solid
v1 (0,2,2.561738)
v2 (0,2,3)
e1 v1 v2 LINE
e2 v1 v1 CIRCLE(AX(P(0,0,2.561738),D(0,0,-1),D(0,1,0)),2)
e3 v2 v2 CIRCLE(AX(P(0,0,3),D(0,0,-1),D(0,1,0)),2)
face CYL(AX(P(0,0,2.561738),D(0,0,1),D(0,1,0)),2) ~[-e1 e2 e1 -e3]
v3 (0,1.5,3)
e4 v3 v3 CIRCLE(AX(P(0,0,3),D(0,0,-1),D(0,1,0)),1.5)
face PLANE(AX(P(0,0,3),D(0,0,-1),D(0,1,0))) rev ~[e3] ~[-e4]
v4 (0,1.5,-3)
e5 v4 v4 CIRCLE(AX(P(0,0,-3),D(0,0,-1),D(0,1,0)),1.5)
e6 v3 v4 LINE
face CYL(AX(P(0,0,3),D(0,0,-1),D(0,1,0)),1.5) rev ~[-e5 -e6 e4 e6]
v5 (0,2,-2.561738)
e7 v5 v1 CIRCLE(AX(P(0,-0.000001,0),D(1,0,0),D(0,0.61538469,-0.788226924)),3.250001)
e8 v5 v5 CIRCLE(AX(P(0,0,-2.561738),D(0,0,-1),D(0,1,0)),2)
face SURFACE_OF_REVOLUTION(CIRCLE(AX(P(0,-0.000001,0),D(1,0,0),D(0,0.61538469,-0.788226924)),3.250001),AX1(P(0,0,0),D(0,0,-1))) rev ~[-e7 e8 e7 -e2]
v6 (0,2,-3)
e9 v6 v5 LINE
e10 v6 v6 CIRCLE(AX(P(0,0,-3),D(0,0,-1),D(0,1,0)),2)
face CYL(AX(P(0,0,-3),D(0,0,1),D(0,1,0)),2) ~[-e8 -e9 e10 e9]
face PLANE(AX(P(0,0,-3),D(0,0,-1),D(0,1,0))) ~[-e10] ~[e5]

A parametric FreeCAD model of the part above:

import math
import FreeCAD as App
import Part
import Sketcher
Q = App.Units.Quantity

doc = App.newDocument("Part")
body = doc.addObject("PartDesign::Body", "Body")

sketch1 = doc.addObject("Sketcher::SketchObject", "Sketch")
body.addObject(sketch1)
sketch1.AttachmentSupport = (doc.YZ_Plane, [""])
sketch1.MapMode = "FlatFace"
sketch1.addGeometry(Part.LineSegment(App.Vector(2, -3, 0), App.Vector(2, -2.56, 0)), False)
sketch1.addGeometry(Part.ArcOfCircle(Part.Circle(App.Vector(0, 0, 0), App.Vector(0, 0, 1), 3.25), math.radians(-52), math.radians(52)), False)
sketch1.addGeometry(Part.LineSegment(App.Vector(2, 2.56, 0), App.Vector(2, 3, 0)), False)
sketch1.addGeometry(Part.LineSegment(App.Vector(2, 3, 0), App.Vector(1.5, 3, 0)), False)
sketch1.addGeometry(Part.LineSegment(App.Vector(1.5, 3, 0), App.Vector(1.5, -3, 0)), False)
sketch1.addGeometry(Part.LineSegment(App.Vector(1.5, -3, 0), App.Vector(2, -3, 0)), False)
sketch1.addConstraint(Sketcher.Constraint("Coincident", 0, 2, 1, 1))
sketch1.addConstraint(Sketcher.Constraint("Coincident", 1, 2, 2, 1))
sketch1.addConstraint(Sketcher.Constraint("Coincident", 2, 2, 3, 1))
sketch1.addConstraint(Sketcher.Constraint("Coincident", 3, 2, 4, 1))
sketch1.addConstraint(Sketcher.Constraint("Coincident", 4, 2, 5, 1))
sketch1.addConstraint(Sketcher.Constraint("Coincident", 5, 2, 0, 1))
sketch1.addConstraint(Sketcher.Constraint("Vertical", 0))
sketch1.addConstraint(Sketcher.Constraint("Vertical", 2))
sketch1.addConstraint(Sketcher.Constraint("Horizontal", 3))
sketch1.addConstraint(Sketcher.Constraint("Vertical", 4))
sketch1.addConstraint(Sketcher.Constraint("Horizontal", 5))
sketch1.addConstraint(Sketcher.Constraint("Coincident", 1, 3, -1, 1))
sketch1.addConstraint(Sketcher.Constraint("Symmetric", 2, 2, 5, 2, -1))
sketch1.addConstraint(Sketcher.Constraint("DistanceY", 4, 2, 4, 1, Q("6 mm")))
sketch1.addConstraint(Sketcher.Constraint("Radius", 1, Q("3.250001 mm")))
sketch1.addConstraint(Sketcher.Constraint("DistanceX", 3, 2, 3, 1, Q("0.5 mm")))
sketch1.addConstraint(Sketcher.Constraint("DistanceX", -1, 1, 0, 2, Q("2 mm")))
revolution = doc.addObject("PartDesign::Revolution", "Revolution")
body.addObject(revolution)
revolution.Profile = sketch1
revolution.ReferenceAxis = (sketch1, ["V_Axis"])
revolution.Angle = 360

doc.recompute()
